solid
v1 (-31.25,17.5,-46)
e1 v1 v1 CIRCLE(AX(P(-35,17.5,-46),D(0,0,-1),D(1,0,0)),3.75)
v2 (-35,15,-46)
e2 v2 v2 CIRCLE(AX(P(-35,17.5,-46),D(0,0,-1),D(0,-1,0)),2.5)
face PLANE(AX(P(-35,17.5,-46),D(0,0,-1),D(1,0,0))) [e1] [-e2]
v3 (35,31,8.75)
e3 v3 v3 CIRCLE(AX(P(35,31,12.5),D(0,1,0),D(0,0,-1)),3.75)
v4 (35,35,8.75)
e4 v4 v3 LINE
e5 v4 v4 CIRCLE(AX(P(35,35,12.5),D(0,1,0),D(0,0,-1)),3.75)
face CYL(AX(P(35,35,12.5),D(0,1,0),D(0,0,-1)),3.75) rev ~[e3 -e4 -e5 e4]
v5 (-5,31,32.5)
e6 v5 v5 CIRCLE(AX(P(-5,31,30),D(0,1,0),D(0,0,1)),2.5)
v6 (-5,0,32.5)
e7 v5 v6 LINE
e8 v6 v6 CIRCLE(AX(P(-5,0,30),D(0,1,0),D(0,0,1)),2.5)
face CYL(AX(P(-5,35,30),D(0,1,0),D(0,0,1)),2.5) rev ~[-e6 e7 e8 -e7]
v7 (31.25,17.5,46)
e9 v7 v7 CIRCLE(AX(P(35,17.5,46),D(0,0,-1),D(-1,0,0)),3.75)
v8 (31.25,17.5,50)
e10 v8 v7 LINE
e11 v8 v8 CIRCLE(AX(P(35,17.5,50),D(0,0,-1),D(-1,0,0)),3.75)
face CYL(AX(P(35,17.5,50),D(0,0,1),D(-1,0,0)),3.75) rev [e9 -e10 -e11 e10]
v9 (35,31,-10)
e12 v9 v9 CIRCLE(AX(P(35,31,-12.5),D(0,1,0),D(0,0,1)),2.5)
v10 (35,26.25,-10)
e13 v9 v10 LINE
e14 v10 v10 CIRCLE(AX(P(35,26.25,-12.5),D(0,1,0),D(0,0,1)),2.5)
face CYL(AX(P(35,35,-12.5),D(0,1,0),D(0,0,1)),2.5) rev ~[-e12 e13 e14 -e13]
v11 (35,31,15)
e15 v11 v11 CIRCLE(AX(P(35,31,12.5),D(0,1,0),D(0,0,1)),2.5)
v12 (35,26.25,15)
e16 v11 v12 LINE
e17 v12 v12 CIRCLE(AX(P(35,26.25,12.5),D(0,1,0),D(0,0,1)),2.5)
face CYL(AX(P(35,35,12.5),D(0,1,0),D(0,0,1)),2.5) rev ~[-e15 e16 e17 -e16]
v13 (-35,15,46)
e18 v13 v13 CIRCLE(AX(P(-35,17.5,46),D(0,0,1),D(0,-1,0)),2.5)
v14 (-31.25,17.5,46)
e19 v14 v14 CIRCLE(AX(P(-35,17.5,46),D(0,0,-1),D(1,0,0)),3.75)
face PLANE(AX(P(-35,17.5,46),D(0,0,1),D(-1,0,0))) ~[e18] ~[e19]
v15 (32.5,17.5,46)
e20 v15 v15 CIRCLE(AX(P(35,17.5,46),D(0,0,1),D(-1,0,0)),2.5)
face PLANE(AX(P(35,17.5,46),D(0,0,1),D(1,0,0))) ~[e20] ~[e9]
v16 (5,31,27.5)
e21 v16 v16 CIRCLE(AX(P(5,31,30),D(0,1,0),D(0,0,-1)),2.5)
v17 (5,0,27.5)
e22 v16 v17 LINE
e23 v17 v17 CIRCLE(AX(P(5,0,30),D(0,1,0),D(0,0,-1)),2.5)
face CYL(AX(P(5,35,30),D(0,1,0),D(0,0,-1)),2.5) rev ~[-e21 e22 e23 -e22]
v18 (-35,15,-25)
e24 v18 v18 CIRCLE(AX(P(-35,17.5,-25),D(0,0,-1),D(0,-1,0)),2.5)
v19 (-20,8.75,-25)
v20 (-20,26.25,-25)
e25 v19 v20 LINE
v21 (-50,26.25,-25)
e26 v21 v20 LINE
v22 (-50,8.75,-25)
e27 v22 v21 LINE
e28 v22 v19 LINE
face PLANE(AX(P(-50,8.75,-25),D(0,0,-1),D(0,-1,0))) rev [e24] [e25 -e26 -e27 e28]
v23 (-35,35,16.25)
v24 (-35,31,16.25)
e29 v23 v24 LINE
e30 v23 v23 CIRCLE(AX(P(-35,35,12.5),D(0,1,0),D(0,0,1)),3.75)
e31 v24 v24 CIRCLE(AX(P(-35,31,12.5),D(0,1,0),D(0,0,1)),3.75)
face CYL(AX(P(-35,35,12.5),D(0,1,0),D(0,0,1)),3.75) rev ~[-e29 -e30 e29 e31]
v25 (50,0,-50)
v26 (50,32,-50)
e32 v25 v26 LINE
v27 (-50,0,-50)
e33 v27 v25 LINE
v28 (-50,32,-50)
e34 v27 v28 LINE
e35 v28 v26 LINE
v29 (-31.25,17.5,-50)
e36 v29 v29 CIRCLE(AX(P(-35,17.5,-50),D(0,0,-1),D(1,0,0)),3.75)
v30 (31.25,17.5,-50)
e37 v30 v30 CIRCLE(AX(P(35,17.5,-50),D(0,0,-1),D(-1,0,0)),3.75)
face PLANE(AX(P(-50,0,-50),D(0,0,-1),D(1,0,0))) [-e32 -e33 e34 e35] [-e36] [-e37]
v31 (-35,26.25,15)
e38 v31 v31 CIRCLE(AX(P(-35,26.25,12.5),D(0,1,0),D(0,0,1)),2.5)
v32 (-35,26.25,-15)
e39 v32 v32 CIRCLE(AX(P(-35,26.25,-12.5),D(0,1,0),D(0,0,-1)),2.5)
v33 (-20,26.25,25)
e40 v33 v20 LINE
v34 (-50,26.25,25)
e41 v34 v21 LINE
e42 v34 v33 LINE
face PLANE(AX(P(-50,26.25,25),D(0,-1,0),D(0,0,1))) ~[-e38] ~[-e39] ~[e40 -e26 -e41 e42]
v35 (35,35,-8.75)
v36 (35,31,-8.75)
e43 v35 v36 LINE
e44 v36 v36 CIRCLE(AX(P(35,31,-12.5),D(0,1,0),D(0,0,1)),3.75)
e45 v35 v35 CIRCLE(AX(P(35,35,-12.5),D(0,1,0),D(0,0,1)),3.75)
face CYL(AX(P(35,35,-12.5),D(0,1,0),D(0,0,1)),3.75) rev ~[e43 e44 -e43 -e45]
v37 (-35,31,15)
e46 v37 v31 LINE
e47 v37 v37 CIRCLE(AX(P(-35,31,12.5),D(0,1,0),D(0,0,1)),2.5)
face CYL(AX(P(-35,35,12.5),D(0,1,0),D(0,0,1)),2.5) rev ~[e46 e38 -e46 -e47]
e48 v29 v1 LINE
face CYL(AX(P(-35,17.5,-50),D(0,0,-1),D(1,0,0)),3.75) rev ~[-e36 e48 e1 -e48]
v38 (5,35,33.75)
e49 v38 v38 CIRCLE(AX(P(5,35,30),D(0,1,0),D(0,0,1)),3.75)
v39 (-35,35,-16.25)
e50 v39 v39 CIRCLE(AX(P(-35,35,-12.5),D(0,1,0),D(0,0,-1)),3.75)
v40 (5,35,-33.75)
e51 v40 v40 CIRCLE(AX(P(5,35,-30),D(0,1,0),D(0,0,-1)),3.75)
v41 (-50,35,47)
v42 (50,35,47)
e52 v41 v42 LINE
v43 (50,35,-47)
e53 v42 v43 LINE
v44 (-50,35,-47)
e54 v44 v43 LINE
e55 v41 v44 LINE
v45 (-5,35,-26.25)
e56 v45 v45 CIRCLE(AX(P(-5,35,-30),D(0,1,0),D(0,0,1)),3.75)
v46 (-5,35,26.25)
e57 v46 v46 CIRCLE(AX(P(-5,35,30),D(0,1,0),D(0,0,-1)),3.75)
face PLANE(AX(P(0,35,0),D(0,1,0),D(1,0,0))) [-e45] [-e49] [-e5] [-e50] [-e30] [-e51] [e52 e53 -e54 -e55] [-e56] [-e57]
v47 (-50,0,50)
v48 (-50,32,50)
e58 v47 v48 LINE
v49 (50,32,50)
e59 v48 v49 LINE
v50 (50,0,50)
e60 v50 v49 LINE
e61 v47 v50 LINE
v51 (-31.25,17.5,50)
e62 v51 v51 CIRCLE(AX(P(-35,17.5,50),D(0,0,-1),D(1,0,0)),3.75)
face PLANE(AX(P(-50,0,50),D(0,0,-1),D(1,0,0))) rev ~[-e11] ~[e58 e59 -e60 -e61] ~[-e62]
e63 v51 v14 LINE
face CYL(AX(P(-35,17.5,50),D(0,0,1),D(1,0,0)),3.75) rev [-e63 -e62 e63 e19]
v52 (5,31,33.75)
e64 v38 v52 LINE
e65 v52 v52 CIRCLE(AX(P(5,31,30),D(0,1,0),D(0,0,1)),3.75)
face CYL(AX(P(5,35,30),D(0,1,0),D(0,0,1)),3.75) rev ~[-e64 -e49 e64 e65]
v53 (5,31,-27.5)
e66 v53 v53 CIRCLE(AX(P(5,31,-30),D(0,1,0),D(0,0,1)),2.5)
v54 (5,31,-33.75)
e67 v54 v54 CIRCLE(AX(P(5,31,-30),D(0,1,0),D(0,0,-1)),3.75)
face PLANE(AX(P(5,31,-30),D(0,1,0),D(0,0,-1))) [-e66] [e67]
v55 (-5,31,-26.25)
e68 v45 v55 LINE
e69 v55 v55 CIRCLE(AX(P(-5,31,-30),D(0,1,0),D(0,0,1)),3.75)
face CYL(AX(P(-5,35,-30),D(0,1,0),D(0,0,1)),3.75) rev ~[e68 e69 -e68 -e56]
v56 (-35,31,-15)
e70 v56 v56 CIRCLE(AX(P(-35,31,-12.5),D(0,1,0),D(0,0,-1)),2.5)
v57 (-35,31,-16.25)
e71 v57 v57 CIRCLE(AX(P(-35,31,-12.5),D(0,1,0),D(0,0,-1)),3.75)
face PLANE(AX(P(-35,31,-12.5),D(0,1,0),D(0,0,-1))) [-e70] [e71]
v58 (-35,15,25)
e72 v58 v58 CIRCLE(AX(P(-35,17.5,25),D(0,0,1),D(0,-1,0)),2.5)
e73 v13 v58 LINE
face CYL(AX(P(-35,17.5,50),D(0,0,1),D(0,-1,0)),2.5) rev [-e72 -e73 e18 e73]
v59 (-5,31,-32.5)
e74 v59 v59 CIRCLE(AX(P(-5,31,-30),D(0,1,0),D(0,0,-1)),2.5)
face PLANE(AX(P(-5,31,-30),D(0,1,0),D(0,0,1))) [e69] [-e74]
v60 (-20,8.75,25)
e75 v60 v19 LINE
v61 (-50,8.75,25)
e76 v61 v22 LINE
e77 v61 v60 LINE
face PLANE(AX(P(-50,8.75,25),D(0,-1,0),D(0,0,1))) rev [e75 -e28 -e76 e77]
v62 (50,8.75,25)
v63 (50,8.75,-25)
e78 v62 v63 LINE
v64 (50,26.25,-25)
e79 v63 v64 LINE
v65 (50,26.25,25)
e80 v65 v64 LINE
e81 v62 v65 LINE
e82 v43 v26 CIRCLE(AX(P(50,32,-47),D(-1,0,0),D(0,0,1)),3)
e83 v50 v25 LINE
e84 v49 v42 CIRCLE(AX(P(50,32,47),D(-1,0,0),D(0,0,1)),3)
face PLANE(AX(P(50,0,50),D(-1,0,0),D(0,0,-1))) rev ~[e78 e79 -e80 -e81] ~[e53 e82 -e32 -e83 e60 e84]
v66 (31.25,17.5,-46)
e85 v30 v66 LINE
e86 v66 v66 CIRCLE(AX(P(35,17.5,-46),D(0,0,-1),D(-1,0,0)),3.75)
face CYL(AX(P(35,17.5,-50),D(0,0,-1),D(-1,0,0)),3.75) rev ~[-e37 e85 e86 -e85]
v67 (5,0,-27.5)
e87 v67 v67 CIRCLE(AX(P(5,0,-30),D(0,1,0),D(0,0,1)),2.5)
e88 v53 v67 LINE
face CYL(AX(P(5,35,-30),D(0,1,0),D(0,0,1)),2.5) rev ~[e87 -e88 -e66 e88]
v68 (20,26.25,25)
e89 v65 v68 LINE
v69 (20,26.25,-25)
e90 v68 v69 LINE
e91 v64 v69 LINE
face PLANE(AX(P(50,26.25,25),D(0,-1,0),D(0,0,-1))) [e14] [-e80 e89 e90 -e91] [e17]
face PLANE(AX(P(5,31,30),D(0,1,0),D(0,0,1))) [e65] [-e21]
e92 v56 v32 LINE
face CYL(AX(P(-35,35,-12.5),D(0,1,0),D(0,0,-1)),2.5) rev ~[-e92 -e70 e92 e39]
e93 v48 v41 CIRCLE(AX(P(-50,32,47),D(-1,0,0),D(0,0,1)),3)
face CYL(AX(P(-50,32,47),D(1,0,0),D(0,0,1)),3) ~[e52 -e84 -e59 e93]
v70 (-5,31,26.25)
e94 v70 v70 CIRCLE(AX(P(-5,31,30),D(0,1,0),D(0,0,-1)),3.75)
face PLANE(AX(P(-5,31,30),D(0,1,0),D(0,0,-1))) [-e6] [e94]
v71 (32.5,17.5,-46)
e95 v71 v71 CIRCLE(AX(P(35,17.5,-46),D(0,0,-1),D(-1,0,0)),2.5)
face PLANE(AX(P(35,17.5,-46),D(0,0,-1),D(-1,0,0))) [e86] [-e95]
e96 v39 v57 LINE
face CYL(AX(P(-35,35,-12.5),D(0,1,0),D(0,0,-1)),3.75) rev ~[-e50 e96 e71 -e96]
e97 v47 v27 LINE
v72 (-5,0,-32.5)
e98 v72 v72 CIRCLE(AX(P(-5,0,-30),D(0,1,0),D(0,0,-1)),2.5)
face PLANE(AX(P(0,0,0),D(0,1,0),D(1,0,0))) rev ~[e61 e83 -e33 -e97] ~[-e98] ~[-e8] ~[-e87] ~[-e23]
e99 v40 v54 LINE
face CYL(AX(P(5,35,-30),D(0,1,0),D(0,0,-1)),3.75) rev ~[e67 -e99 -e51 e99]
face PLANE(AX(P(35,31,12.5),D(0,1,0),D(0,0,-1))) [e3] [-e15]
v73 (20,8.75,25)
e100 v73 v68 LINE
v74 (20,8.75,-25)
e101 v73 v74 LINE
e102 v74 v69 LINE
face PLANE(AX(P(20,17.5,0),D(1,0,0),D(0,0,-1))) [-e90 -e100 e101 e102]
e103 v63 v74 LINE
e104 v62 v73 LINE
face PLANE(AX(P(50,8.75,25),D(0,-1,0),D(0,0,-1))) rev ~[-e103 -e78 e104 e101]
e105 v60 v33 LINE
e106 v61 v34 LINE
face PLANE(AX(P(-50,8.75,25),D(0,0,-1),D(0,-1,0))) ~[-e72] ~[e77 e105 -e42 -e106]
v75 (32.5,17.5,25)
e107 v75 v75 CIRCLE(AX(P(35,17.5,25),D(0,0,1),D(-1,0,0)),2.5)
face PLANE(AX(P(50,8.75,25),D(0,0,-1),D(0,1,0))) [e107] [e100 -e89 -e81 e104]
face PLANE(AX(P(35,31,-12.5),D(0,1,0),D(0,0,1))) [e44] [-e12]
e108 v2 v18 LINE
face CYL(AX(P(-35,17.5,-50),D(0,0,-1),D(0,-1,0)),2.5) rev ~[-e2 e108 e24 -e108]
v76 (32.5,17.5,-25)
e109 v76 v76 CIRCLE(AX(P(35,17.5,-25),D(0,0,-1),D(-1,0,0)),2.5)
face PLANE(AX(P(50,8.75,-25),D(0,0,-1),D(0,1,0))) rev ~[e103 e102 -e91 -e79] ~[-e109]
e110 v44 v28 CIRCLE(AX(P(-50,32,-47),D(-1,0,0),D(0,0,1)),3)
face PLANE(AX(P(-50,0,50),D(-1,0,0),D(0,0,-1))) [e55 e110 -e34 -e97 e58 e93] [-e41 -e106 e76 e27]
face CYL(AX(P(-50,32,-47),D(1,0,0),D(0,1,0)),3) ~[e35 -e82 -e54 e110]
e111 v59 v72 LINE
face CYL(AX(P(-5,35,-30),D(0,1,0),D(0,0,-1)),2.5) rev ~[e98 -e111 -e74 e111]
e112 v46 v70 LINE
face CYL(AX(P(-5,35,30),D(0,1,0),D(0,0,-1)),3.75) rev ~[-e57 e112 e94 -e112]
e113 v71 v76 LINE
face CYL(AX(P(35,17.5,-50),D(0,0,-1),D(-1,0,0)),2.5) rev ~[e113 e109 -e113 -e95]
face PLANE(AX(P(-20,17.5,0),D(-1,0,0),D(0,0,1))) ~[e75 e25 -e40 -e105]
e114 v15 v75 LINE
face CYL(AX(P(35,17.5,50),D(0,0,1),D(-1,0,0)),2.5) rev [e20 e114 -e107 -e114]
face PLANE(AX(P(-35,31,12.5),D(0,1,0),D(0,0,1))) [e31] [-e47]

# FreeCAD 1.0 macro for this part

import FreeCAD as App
import Part
import Sketcher

V = App.Vector


def edges_at(feature, points):
    """Names of the edges that pass closest to the given points."""
    edges = feature.Shape.Edges
    near = lambda p: min(range(len(edges)), key=lambda i: edges[i].distToShape(Part.Vertex(*p))[0])
    return sorted({f"Edge{near(p) + 1}" for p in points})


def add_polygon(sketch, points):
    """Adds a closed chain of lines whose ends are joined by coincident constraints."""
    first, n = sketch.GeometryCount, len(points)
    for a, b in zip(points, points[1:] + points[:1]):
        sketch.addGeometry(Part.LineSegment(App.Vector(*a, 0), App.Vector(*b, 0)), False)
    for i in range(n):
        sketch.addConstraint(Sketcher.Constraint("Coincident", first + i, 2, first + (i + 1) % n, 1))

doc = App.newDocument("Part")
body = doc.addObject("PartDesign::Body", "Body")

# Sketch on XZ plane
sketch1 = body.newObject("Sketcher::SketchObject", "Sketch")
sketch1.AttachmentSupport = (doc.getObject("XZ_Plane"), [""])
sketch1.MapMode = "FlatFace"
add_polygon(sketch1, [(-50, -50), (-50, 50), (50, 50), (50, -50)])  # lines 0-3
sketch1.addConstraint(Sketcher.Constraint("Vertical", 0))
sketch1.addConstraint(Sketcher.Constraint("Horizontal", 1))
sketch1.addConstraint(Sketcher.Constraint("Vertical", 2))
sketch1.addConstraint(Sketcher.Constraint("Horizontal", 3))
sketch1.addConstraint(Sketcher.Constraint("Symmetric", 0, 2, 2, 2, -1, 1))
sketch1.addConstraint(Sketcher.Constraint("Equal", 3, 0))
sketch1.addConstraint(Sketcher.Constraint("DistanceX", 1, 1, 1, 2, 100.0))
pad1 = body.newObject("PartDesign::Pad", "Pad")
pad1.Profile = sketch1
pad1.Length = 35
pad1.Reversed = True

# Sketch on YZ plane
sketch2 = body.newObject("Sketcher::SketchObject", "Sketch001")
sketch2.AttachmentSupport = (doc.getObject("YZ_Plane"), [""])
sketch2.MapMode = "FlatFace"
sketch2.AttachmentOffset = App.Placement(V(0, 0, 50), App.Rotation())
add_polygon(sketch2, [(26, 25), (9, 25), (9, -25), (26, -25)])  # lines 0-3
sketch2.addConstraint(Sketcher.Constraint("Horizontal", 0))
sketch2.addConstraint(Sketcher.Constraint("Vertical", 1))
sketch2.addConstraint(Sketcher.Constraint("Horizontal", 2))
sketch2.addConstraint(Sketcher.Constraint("Vertical", 3))
sketch2.addConstraint(Sketcher.Constraint("DistanceY", 1, 2, 1, 1, 50.0))
sketch2.addConstraint(Sketcher.Constraint("DistanceX", 0, 2, 0, 1, 17.5))
sketch2.addConstraint(Sketcher.Constraint("DistanceY", -1, 1, 0, 2, 25.0))
sketch2.addConstraint(Sketcher.Constraint("DistanceX", -1, 1, 0, 2, 8.75))
pocket1 = body.newObject("PartDesign::Pocket", "Pocket")
pocket1.Profile = sketch2
pocket1.Length = 30
doc.recompute()

mirrored = body.newObject("PartDesign::Mirrored", "Mirrored")
mirrored.Originals = [pocket1]
mirrored.MirrorPlane = (doc.getObject("YZ_Plane"), [""])
body.Tip = mirrored

# Sketch on XZ plane
sketch3 = body.newObject("Sketcher::SketchObject", "Sketch002")
sketch3.AttachmentSupport = (doc.getObject("XZ_Plane"), [""])
sketch3.MapMode = "FlatFace"
sketch3.AttachmentOffset = App.Placement(V(0, 0, -35), App.Rotation())
sketch3.addGeometry(Part.Circle(V(35, -12.5, 0), V(0, 0, 1), 2.5), False)
sketch3.addGeometry(Part.Circle(V(35, 12.5, 0), V(0, 0, 1), 2.5), False)
sketch3.addGeometry(Part.Circle(V(-35, 12.5, 0), V(0, 0, 1), 2.5), False)
sketch3.addGeometry(Part.Circle(V(-35, -12.5, 0), V(0, 0, 1), 2.5), False)
sketch3.addConstraint(Sketcher.Constraint("Equal", 0, 1))
sketch3.addConstraint(Sketcher.Constraint("Equal", 1, 2))
sketch3.addConstraint(Sketcher.Constraint("Equal", 2, 3))
sketch3.addConstraint(Sketcher.Constraint("Symmetric", 0, 3, 2, 3, -1, 1))
sketch3.addConstraint(Sketcher.Constraint("Symmetric", 1, 3, 3, 3, -1, 1))
sketch3.addConstraint(Sketcher.Constraint("Symmetric", 1, 3, 2, 3, -2))
sketch3.addConstraint(Sketcher.Constraint("Diameter", 0, 5.0))
sketch3.addConstraint(Sketcher.Constraint("DistanceX", -1, 1, 0, 3, 35.0))
sketch3.addConstraint(Sketcher.Constraint("DistanceY", 0, 3, 1, 3, 25.0))
pocket2 = body.newObject("PartDesign::Pocket", "Pocket001")
pocket2.Profile = sketch3
pocket2.Length = 10
pocket2.Reversed = True

# Sketch on XZ plane
sketch4 = body.newObject("Sketcher::SketchObject", "Sketch003")
sketch4.AttachmentSupport = (doc.getObject("XZ_Plane"), [""])
sketch4.MapMode = "FlatFace"
sketch4.AttachmentOffset = App.Placement(V(0, 0, -35), App.Rotation())
sketch4.addGeometry(Part.Circle(V(35, -12.5, 0), V(0, 0, 1), 3.8), False)
sketch4.addGeometry(Part.Circle(V(35, 12.5, 0), V(0, 0, 1), 3.8), False)
sketch4.addGeometry(Part.Circle(V(-35, 12.5, 0), V(0, 0, 1), 3.8), False)
sketch4.addGeometry(Part.Circle(V(-35, -12.5, 0), V(0, 0, 1), 3.8), False)
sketch4.addConstraint(Sketcher.Constraint("Equal", 0, 1))
sketch4.addConstraint(Sketcher.Constraint("Equal", 1, 2))
sketch4.addConstraint(Sketcher.Constraint("Equal", 2, 3))
sketch4.addConstraint(Sketcher.Constraint("Symmetric", 0, 3, 2, 3, -1, 1))
sketch4.addConstraint(Sketcher.Constraint("Symmetric", 1, 3, 3, 3, -1, 1))
sketch4.addConstraint(Sketcher.Constraint("Symmetric", 1, 3, 2, 3, -2))
sketch4.addConstraint(Sketcher.Constraint("Diameter", 0, 7.5))
sketch4.addConstraint(Sketcher.Constraint("DistanceX", -1, 1, 0, 3, 35.0))
sketch4.addConstraint(Sketcher.Constraint("DistanceY", 0, 3, 1, 3, 25.0))
pocket3 = body.newObject("PartDesign::Pocket", "Pocket002")
pocket3.Profile = sketch4
pocket3.Length = 4
pocket3.Reversed = True

# Sketch on XY plane
sketch5 = body.newObject("Sketcher::SketchObject", "Sketch004")
sketch5.AttachmentSupport = (doc.getObject("XY_Plane"), [""])
sketch5.MapMode = "FlatFace"
sketch5.AttachmentOffset = App.Placement(V(0, 0, -50), App.Rotation())
sketch5.addGeometry(Part.Circle(V(35, 17.5, 0), V(0, 0, 1), 2.5), False)
sketch5.addGeometry(Part.Circle(V(-35, 17.5, 0), V(0, 0, 1), 2.5), False)
sketch5.addConstraint(Sketcher.Constraint("Equal", 0, 1))
sketch5.addConstraint(Sketcher.Constraint("Symmetric", 0, 3, 1, 3, -2))
sketch5.addConstraint(Sketcher.Constraint("Diameter", 0, 5.0))
sketch5.addConstraint(Sketcher.Constraint("DistanceX", -1, 1, 0, 3, 35.0))
sketch5.addConstraint(Sketcher.Constraint("DistanceY", -1, 1, 0, 3, 17.5))
pocket4 = body.newObject("PartDesign::Pocket", "Pocket003")
pocket4.Profile = sketch5
pocket4.Length = 30
pocket4.Reversed = True

# Sketch on XY plane
sketch6 = body.newObject("Sketcher::SketchObject", "Sketch005")
sketch6.AttachmentSupport = (doc.getObject("XY_Plane"), [""])
sketch6.MapMode = "FlatFace"
sketch6.AttachmentOffset = App.Placement(V(0, 0, -50), App.Rotation())
sketch6.addGeometry(Part.Circle(V(35, 17.5, 0), V(0, 0, 1), 3.8), False)
sketch6.addGeometry(Part.Circle(V(-35, 17.5, 0), V(0, 0, 1), 3.8), False)
sketch6.addConstraint(Sketcher.Constraint("Equal", 0, 1))
sketch6.addConstraint(Sketcher.Constraint("Symmetric", 0, 3, 1, 3, -2))
sketch6.addConstraint(Sketcher.Constraint("Diameter", 0, 7.5))
sketch6.addConstraint(Sketcher.Constraint("DistanceX", -1, 1, 0, 3, 35.0))
sketch6.addConstraint(Sketcher.Constraint("DistanceY", -1, 1, 0, 3, 17.5))
pocket5 = body.newObject("PartDesign::Pocket", "Pocket004")
pocket5.Profile = sketch6
pocket5.Length = 4
pocket5.Reversed = True
doc.recompute()

mirrored2 = body.newObject("PartDesign::Mirrored", "Mirrored001")
mirrored2.Originals = [pocket4, pocket5]
mirrored2.MirrorPlane = (doc.getObject("XY_Plane"), [""])
body.Tip = mirrored2

# Sketch on XZ plane
sketch7 = body.newObject("Sketcher::SketchObject", "Sketch006")
sketch7.AttachmentSupport = (doc.getObject("XZ_Plane"), [""])
sketch7.MapMode = "FlatFace"
sketch7.AttachmentOffset = App.Placement(V(0, 0, -35), App.Rotation())
sketch7.addGeometry(Part.Circle(V(5, -30, 0), V(0, 0, 1), 2.5), False)
sketch7.addGeometry(Part.Circle(V(5, 30, 0), V(0, 0, 1), 2.5), False)
sketch7.addGeometry(Part.Circle(V(-5, 30, 0), V(0, 0, 1), 2.5), False)
sketch7.addGeometry(Part.Circle(V(-5, -30, 0), V(0, 0, 1), 2.5), False)
sketch7.addConstraint(Sketcher.Constraint("Equal", 0, 1))
sketch7.addConstraint(Sketcher.Constraint("Equal", 1, 2))
sketch7.addConstraint(Sketcher.Constraint("Equal", 2, 3))
sketch7.addConstraint(Sketcher.Constraint("Symmetric", 0, 3, 2, 3, -1, 1))
sketch7.addConstraint(Sketcher.Constraint("Symmetric", 1, 3, 3, 3, -1, 1))
sketch7.addConstraint(Sketcher.Constraint("Symmetric", 1, 3, 2, 3, -2))
sketch7.addConstraint(Sketcher.Constraint("Diameter", 0, 5.0))
sketch7.addConstraint(Sketcher.Constraint("DistanceX", -1, 1, 0, 3, 5.0))
sketch7.addConstraint(Sketcher.Constraint("DistanceY", 0, 3, -1, 1, 30.0))
pocket6 = body.newObject("PartDesign::Pocket", "Pocket005")
pocket6.Profile = sketch7
pocket6.Type = "ThroughAll"
pocket6.Reversed = True

# Sketch on XZ plane
sketch8 = body.newObject("Sketcher::SketchObject", "Sketch007")
sketch8.AttachmentSupport = (doc.getObject("XZ_Plane"), [""])
sketch8.MapMode = "FlatFace"
sketch8.AttachmentOffset = App.Placement(V(0, 0, -35), App.Rotation())
sketch8.addGeometry(Part.Circle(V(-5, -30, 0), V(0, 0, 1), 3.8), False)
sketch8.addGeometry(Part.Circle(V(5, -30, 0), V(0, 0, 1), 3.8), False)
sketch8.addGeometry(Part.Circle(V(5, 30, 0), V(0, 0, 1), 3.8), False)
sketch8.addGeometry(Part.Circle(V(-5, 30, 0), V(0, 0, 1), 3.8), False)
sketch8.addConstraint(Sketcher.Constraint("Equal", 0, 1))
sketch8.addConstraint(Sketcher.Constraint("Equal", 1, 2))
sketch8.addConstraint(Sketcher.Constraint("Equal", 2, 3))
sketch8.addConstraint(Sketcher.Constraint("Symmetric", 0, 3, 2, 3, -1, 1))
sketch8.addConstraint(Sketcher.Constraint("Symmetric", 1, 3, 3, 3, -1, 1))
sketch8.addConstraint(Sketcher.Constraint("Symmetric", 0, 3, 1, 3, -2))
sketch8.addConstraint(Sketcher.Constraint("Diameter", 0, 7.5))
sketch8.addConstraint(Sketcher.Constraint("DistanceX", 0, 3, -1, 1, 5.0))
sketch8.addConstraint(Sketcher.Constraint("DistanceY", 0, 3, -1, 1, 30.0))
pocket7 = body.newObject("PartDesign::Pocket", "Pocket006")
pocket7.Profile = sketch8
pocket7.Length = 4
pocket7.Reversed = True
doc.recompute()

fillet = body.newObject("PartDesign::Fillet", "Fillet")
fillet.Base = (pocket7, edges_at(pocket7, [(0, 35, 50), (0, 35, -50)]))
fillet.Radius = 3

doc.recompute()
